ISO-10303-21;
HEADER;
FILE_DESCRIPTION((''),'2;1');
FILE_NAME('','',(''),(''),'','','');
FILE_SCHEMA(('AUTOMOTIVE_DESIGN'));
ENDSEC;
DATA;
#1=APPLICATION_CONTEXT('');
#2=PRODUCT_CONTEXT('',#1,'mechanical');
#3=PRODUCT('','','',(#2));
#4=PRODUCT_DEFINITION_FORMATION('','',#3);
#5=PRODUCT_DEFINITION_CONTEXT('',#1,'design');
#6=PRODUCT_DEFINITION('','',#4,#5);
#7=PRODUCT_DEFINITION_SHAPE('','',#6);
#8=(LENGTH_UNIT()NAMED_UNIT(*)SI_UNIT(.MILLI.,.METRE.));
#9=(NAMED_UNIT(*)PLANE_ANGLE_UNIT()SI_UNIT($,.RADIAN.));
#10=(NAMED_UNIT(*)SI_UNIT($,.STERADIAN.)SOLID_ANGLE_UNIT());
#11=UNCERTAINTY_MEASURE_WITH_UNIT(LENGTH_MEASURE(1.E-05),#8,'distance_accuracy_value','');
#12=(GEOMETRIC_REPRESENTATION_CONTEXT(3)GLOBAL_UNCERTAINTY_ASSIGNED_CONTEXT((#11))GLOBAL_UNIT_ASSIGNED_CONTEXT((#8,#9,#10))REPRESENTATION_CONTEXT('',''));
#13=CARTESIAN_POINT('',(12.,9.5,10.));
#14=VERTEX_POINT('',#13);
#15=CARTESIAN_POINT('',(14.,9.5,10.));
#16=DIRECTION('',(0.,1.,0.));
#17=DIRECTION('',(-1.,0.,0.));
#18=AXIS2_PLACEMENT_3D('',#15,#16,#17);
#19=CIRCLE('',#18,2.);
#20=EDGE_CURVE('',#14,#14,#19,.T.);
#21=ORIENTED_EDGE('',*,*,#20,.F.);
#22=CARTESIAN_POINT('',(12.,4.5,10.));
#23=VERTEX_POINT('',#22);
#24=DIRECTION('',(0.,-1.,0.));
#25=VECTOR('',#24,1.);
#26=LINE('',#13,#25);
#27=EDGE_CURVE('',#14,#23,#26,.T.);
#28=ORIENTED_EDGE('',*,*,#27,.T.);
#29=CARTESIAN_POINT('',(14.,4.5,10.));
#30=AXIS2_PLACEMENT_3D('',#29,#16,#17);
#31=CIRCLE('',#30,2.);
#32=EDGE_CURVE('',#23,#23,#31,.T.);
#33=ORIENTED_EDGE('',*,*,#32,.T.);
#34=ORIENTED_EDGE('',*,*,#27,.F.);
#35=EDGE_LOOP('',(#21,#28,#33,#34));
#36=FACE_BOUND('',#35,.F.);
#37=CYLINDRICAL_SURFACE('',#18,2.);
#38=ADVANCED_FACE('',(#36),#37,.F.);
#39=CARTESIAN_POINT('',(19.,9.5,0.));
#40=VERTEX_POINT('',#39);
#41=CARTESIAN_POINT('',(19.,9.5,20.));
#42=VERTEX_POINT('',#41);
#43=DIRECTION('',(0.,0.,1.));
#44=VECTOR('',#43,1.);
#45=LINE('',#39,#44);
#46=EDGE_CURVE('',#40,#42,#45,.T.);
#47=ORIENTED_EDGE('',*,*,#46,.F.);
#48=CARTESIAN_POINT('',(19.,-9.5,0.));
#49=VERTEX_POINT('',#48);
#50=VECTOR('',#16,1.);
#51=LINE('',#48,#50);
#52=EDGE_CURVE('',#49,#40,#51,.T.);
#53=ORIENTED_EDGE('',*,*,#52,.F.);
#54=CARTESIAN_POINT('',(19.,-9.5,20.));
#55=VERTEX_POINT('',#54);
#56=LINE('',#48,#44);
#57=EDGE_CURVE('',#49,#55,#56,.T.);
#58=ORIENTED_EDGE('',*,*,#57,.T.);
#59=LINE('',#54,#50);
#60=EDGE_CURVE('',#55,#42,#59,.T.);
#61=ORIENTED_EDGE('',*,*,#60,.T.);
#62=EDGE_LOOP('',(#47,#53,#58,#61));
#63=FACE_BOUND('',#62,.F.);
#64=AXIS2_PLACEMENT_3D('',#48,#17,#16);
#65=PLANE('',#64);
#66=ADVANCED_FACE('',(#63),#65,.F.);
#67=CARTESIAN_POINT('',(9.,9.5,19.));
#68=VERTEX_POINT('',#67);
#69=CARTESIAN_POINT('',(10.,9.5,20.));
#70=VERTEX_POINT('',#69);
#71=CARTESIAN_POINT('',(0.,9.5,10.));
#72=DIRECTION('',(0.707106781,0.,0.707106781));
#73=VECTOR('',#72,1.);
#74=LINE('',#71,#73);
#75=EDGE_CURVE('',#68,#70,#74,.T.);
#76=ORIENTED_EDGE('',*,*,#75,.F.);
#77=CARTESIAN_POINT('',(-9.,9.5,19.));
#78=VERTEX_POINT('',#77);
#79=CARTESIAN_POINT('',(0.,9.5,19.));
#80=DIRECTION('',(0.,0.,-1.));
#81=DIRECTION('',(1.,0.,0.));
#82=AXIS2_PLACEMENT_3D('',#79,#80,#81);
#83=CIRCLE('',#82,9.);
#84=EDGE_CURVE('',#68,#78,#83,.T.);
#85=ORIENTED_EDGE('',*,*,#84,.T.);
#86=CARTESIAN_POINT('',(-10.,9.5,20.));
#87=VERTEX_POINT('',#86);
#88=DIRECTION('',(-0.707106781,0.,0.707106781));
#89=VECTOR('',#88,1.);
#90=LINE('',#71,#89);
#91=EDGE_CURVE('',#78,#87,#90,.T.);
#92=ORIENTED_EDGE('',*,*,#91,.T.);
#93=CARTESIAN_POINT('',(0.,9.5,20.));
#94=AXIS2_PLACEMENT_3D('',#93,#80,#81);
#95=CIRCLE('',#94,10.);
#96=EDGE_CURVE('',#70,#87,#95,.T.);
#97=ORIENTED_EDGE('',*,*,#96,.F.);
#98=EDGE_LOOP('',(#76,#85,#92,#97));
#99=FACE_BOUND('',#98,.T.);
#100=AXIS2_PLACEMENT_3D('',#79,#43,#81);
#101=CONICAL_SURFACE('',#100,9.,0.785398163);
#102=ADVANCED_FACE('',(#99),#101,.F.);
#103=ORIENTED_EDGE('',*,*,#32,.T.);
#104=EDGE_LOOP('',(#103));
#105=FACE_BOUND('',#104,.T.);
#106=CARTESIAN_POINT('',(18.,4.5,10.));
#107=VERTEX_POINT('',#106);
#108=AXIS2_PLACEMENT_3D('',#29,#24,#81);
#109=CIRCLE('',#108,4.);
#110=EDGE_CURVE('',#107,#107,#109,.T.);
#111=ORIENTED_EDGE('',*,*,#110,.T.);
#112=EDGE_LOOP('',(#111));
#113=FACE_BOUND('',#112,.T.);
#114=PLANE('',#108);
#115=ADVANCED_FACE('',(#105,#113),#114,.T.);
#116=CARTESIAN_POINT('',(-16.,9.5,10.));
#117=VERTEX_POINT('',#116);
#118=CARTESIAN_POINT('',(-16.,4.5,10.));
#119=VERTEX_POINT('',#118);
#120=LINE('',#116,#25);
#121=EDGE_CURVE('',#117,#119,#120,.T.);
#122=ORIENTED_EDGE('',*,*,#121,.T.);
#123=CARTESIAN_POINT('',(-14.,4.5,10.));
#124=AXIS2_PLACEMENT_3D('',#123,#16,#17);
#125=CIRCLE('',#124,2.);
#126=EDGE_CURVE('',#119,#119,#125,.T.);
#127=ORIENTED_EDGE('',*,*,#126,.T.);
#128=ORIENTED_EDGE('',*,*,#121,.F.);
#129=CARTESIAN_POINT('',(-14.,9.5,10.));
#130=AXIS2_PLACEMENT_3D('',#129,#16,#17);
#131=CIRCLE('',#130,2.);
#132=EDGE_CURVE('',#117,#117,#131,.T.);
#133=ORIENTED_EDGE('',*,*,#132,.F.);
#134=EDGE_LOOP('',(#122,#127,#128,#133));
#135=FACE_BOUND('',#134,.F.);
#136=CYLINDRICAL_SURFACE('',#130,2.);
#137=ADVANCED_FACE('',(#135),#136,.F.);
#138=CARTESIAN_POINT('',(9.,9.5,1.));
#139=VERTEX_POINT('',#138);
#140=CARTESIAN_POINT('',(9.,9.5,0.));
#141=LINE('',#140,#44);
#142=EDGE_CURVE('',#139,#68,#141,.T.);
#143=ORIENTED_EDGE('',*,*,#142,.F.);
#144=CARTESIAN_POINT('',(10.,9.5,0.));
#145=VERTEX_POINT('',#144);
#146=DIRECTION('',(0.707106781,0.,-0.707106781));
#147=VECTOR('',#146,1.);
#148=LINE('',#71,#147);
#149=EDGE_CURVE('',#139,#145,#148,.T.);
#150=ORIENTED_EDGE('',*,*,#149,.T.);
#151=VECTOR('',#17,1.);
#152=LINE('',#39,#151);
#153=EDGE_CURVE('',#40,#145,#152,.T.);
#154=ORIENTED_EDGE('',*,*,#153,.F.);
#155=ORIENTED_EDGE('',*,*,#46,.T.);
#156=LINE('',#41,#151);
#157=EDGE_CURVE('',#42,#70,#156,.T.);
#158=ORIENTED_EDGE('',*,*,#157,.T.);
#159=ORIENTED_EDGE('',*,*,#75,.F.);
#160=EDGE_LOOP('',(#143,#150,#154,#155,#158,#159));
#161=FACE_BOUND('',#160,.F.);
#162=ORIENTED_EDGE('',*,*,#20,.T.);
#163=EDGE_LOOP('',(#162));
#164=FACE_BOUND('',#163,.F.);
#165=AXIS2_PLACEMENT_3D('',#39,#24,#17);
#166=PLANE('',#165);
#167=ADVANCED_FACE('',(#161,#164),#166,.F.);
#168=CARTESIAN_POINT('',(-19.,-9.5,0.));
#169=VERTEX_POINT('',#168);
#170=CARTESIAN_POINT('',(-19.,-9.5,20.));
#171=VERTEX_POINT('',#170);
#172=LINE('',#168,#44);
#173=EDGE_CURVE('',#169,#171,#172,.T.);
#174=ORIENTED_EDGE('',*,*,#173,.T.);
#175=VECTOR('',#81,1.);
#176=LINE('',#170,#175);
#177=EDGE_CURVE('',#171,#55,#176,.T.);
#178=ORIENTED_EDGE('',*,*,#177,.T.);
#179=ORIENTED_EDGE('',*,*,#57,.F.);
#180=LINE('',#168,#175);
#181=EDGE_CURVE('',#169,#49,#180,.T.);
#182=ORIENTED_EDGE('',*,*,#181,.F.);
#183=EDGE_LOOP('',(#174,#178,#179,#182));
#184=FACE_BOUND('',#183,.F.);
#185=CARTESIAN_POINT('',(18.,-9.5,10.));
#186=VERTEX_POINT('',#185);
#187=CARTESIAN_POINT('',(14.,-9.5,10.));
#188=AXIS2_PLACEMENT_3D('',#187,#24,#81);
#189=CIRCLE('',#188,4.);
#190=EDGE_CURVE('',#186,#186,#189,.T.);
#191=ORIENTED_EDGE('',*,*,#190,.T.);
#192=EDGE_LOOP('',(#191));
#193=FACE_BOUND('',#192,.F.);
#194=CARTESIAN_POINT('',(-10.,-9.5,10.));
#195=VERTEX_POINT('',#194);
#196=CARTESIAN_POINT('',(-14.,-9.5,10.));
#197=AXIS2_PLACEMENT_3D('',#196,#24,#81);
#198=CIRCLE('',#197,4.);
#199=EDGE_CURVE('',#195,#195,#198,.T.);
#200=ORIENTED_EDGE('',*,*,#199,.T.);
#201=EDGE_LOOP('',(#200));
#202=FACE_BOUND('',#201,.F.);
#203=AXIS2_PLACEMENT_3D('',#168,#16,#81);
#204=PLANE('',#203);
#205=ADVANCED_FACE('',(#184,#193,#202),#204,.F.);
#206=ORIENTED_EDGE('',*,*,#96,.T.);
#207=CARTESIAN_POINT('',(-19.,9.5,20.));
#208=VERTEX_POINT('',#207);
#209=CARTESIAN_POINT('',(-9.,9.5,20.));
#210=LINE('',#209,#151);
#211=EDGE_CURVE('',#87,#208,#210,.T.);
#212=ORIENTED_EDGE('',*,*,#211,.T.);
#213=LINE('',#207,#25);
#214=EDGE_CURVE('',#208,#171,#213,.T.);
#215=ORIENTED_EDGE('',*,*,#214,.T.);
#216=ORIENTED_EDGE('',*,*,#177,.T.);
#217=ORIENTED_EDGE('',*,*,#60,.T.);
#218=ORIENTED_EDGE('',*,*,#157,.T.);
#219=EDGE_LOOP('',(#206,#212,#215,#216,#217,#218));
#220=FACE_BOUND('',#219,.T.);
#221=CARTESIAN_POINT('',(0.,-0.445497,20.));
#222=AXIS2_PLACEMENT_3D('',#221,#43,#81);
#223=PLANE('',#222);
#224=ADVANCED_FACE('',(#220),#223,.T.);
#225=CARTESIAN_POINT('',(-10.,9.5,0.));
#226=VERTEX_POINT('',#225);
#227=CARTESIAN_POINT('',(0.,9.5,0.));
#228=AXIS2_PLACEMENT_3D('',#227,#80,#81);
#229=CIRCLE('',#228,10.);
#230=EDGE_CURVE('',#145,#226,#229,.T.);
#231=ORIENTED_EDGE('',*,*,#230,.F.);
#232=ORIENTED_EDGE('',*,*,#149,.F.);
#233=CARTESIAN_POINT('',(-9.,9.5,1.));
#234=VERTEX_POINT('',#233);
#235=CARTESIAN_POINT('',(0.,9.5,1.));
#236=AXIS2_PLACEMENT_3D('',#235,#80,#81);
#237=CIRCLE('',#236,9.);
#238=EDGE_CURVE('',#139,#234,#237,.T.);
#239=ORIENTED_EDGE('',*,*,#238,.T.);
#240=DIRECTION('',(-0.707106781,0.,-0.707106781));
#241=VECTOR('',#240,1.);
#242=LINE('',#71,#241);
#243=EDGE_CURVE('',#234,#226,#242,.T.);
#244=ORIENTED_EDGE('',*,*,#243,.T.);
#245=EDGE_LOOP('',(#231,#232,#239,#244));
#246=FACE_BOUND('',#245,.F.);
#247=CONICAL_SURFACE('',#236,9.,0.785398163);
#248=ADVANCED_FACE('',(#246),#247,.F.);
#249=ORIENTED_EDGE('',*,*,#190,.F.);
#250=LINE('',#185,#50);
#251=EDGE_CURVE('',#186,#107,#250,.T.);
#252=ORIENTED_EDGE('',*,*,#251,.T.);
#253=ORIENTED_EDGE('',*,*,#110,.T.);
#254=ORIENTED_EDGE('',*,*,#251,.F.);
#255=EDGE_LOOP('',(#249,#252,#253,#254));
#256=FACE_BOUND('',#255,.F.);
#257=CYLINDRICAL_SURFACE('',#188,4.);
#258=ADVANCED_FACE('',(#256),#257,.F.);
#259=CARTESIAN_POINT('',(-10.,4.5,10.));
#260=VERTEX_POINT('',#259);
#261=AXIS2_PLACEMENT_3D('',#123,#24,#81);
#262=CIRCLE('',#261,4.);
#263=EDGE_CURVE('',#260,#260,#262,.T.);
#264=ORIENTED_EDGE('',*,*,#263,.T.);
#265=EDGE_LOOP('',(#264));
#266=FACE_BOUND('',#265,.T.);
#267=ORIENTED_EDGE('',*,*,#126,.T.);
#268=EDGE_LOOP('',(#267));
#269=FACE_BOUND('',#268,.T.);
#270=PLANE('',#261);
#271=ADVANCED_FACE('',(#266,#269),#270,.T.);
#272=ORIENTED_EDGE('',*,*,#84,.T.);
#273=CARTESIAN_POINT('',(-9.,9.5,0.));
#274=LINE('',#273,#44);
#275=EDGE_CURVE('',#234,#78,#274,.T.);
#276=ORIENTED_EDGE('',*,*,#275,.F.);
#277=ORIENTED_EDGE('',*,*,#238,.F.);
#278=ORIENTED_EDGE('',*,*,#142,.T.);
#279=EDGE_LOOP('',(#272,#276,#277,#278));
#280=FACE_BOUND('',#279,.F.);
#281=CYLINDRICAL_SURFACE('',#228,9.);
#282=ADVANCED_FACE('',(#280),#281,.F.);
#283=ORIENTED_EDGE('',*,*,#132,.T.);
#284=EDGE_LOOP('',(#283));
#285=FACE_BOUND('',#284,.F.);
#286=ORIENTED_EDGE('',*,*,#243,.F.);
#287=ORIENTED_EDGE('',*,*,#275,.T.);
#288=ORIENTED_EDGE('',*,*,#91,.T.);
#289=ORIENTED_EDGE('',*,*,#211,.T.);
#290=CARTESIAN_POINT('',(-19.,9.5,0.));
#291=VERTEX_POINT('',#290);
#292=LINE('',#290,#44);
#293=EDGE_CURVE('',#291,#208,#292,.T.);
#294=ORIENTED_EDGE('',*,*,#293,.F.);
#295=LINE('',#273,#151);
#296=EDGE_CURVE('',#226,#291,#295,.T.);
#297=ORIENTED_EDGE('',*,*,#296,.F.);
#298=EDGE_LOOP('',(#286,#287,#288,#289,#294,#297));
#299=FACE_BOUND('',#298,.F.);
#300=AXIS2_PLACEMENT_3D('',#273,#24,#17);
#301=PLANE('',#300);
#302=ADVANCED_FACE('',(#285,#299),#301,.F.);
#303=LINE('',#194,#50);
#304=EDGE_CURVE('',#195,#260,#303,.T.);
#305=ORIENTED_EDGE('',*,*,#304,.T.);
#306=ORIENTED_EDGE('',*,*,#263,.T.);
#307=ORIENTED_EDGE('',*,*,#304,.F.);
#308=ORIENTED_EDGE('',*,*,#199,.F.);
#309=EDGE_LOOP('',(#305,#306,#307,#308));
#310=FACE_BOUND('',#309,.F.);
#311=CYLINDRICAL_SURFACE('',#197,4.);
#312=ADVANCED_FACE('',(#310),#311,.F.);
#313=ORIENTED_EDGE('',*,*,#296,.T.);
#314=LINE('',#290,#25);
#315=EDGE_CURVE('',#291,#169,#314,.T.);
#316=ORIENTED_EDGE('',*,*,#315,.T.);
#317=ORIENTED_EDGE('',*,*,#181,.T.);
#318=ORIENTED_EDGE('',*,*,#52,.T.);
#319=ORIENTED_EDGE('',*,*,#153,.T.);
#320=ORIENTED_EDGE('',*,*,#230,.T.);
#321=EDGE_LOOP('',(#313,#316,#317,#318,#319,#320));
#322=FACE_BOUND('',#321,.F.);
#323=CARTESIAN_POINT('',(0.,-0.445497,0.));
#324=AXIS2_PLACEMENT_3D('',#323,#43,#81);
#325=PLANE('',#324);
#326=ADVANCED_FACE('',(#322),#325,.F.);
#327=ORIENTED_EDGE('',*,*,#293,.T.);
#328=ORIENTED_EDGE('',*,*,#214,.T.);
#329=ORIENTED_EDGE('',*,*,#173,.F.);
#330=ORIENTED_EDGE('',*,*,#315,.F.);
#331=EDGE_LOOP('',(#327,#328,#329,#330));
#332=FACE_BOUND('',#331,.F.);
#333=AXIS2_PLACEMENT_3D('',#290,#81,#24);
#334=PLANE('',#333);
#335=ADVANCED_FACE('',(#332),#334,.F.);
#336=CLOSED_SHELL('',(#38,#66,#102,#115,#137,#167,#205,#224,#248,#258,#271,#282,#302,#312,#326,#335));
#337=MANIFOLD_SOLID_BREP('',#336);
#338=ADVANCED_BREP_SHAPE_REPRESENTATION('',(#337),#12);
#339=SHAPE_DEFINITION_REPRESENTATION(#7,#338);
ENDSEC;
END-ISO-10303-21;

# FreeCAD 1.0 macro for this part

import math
import FreeCAD as App
import Part
import Sketcher
from FreeCAD import Vector
Q = App.Units.Quantity


def edges_at(feature, points):
    """Names of the edges that pass closest to the given points."""
    edges = feature.Shape.Edges
    near = lambda p: min(range(len(edges)), key=lambda i: edges[i].distToShape(Part.Vertex(*p))[0])
    return sorted({f"Edge{near(p) + 1}" for p in points})

doc = App.newDocument("Part")
body = doc.addObject("PartDesign::Body", "Body")

# Sketch on XY plane
sketch1 = body.newObject("Sketcher::SketchObject", "Sketch")
sketch1.AttachmentSupport = (doc.getObject("XY_Plane"), [""])
sketch1.MapMode = "FlatFace"
sketch1.addGeometry([
    Part.LineSegment(Vector(-9, 10, 0), Vector(-19, 10, 0)),  # 0
    Part.LineSegment(Vector(-19, 10, 0), Vector(-19, -10, 0)),  # 1
    Part.LineSegment(Vector(-19, -10, 0), Vector(19, -10, 0)),  # 2
    Part.LineSegment(Vector(19, -10, 0), Vector(19, 10, 0)),  # 3
    Part.LineSegment(Vector(19, 10, 0), Vector(9, 10, 0)),  # 4
    Part.ArcOfCircle(Part.Circle(Vector(0, 10, 0), Vector(0, 0, 1), 9), math.radians(180), math.radians(360)),  # 5
], False)
sketch1.addConstraint([
    Sketcher.Constraint("Coincident", 0, 2, 1, 1),
    Sketcher.Constraint("Coincident", 1, 2, 2, 1),
    Sketcher.Constraint("Coincident", 2, 2, 3, 1),
    Sketcher.Constraint("Coincident", 3, 2, 4, 1),
    Sketcher.Constraint("Coincident", 4, 2, 5, 2),
    Sketcher.Constraint("Coincident", 5, 1, 0, 1),
    Sketcher.Constraint("Horizontal", 0),
    Sketcher.Constraint("Vertical", 1),
    Sketcher.Constraint("Horizontal", 2),
    Sketcher.Constraint("Vertical", 3),
    Sketcher.Constraint("Horizontal", 4),
    Sketcher.Constraint("Symmetric", 0, 2, 2, 2, -1, 1),
    Sketcher.Constraint("Symmetric", 4, 2, 5, 1, -2),
    Sketcher.Constraint("Horizontal", 5, 3, 0, 2),
    Sketcher.Constraint("Radius", 5, Q("9 mm")),
    Sketcher.Constraint("DistanceX", 0, 2, 0, 1, Q("10 mm")),
    Sketcher.Constraint("DistanceY", 1, 2, 1, 1, Q("19 mm")),
])
pad1 = body.newObject("PartDesign::Pad", "Pad")
pad1.Profile = sketch1
pad1.Length = 20

# Sketch on XZ plane
sketch2 = body.newObject("Sketcher::SketchObject", "Sketch001")
sketch2.AttachmentSupport = (doc.getObject("XZ_Plane"), [""])
sketch2.MapMode = "FlatFace"
sketch2.AttachmentOffset = App.Placement(Vector(0, 0, -9.5), App.Rotation())
sketch2.addGeometry([
    Part.Circle(Vector(14, 10, 0), Vector(0, 0, 1), 2),
    Part.Circle(Vector(-14, 10, 0), Vector(0, 0, 1), 2),
], False)
sketch2.addConstraint([
    Sketcher.Constraint("Equal", 0, 1),
    Sketcher.Constraint("Symmetric", 0, 3, 1, 3, -2),
    Sketcher.Constraint("Diameter", 0, Q("4 mm")),
    Sketcher.Constraint("DistanceX", -1, 1, 0, 3, Q("14 mm")),
    Sketcher.Constraint("DistanceY", -1, 1, 0, 3, Q("10 mm")),
])
pocket1 = body.newObject("PartDesign::Pocket", "Pocket")
pocket1.Profile = sketch2
pocket1.Type = "ThroughAll"
pocket1.Reversed = True

# Sketch on XZ plane
sketch3 = body.newObject("Sketcher::SketchObject", "Sketch002")
sketch3.AttachmentSupport = (doc.getObject("XZ_Plane"), [""])
sketch3.MapMode = "FlatFace"
sketch3.AttachmentOffset = App.Placement(Vector(0, 0, 9.5), App.Rotation())
sketch3.addGeometry([
    Part.Circle(Vector(-14, 10, 0), Vector(0, 0, 1), 4),
    Part.Circle(Vector(14, 10, 0), Vector(0, 0, 1), 4),
], False)
sketch3.addConstraint([
    Sketcher.Constraint("Equal", 0, 1),
    Sketcher.Constraint("Symmetric", 0, 3, 1, 3, -2),
    Sketcher.Constraint("Diameter", 0, Q("8 mm")),
    Sketcher.Constraint("DistanceX", 0, 3, -1, 1, Q("14 mm")),
    Sketcher.Constraint("DistanceY", -1, 1, 0, 3, Q("10 mm")),
])
pocket2 = body.newObject("PartDesign::Pocket", "Pocket001")
pocket2.Profile = sketch3
pocket2.Length = 14
doc.recompute()

chamfer = body.newObject("PartDesign::Chamfer", "Chamfer")
chamfer.Base = (pocket2, edges_at(pocket2, [(0, 0.5, 0), (0, 0.5, 20)]))
chamfer.Size = 1

doc.recompute()
